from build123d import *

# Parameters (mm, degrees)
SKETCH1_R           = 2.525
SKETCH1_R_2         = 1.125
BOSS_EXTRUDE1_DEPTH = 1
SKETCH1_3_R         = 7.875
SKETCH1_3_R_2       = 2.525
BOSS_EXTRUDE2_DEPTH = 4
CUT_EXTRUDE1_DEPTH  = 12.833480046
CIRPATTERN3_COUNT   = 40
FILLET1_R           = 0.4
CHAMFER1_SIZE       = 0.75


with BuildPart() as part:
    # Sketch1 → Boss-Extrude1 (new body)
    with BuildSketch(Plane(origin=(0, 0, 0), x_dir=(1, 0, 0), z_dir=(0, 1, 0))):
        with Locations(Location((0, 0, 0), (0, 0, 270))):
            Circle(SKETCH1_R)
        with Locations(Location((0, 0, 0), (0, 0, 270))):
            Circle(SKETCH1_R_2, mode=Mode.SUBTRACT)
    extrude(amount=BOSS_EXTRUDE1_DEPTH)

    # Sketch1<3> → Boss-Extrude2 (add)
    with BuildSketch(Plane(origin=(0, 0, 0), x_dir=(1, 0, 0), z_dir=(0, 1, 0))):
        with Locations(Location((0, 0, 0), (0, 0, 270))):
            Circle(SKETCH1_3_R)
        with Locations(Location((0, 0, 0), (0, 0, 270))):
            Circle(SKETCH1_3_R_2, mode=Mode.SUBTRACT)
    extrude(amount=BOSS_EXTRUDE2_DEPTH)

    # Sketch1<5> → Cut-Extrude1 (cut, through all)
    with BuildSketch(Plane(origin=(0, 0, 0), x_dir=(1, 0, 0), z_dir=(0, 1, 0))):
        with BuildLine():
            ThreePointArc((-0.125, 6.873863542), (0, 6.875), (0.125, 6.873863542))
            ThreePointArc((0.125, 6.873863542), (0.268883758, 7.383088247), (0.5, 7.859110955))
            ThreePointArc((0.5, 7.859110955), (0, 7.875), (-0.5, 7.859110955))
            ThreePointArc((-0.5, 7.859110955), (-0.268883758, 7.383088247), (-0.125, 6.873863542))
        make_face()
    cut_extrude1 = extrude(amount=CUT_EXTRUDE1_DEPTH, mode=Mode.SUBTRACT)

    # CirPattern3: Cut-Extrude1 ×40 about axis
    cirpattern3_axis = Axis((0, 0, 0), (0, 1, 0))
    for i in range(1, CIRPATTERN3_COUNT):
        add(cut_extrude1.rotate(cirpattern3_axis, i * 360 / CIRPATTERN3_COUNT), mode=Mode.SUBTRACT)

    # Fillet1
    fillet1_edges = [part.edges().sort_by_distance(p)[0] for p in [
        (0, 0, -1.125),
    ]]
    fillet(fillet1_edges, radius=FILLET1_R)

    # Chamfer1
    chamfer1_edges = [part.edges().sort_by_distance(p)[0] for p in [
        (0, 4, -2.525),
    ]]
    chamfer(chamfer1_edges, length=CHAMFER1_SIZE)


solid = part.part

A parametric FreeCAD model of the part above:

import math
import FreeCAD as App
import Part
import Sketcher
from FreeCAD import Vector
Q = App.Units.Quantity


def edges_at(feature, points):
    """Names of the edges that pass closest to the given points."""
    edges = feature.Shape.Edges
    near = lambda p: min(range(len(edges)), key=lambda i: edges[i].distToShape(Part.Vertex(*p))[0])
    return sorted({f"Edge{near(p) + 1}" for p in points})

doc = App.newDocument("Part")
body = doc.addObject("PartDesign::Body", "Body")

# Sketch on XZ plane
sketch1 = body.newObject("Sketcher::SketchObject", "Sketch")
sketch1.AttachmentSupport = (doc.getObject("XZ_Plane"), [""])
sketch1.MapMode = "FlatFace"
sketch1.addGeometry(Part.Circle(Vector(0, 0, 0), Vector(0, 0, 1), 2.5), False)
sketch1.addGeometry(Part.Circle(Vector(0, 0, 0), Vector(0, 0, 1), 1.1), False)
sketch1.addConstraint(Sketcher.Constraint("Coincident", 0, 3, -1, 1))
sketch1.addConstraint(Sketcher.Constraint("Coincident", 1, 3, -1, 1))
sketch1.addConstraint(Sketcher.Constraint("Diameter", 0, Q("5.05 mm")))
sketch1.addConstraint(Sketcher.Constraint("Diameter", 1, Q("2.25 mm")))
pad1 = body.newObject("PartDesign::Pad", "Pad")
pad1.Profile = sketch1
pad1.Length = 1
pad1.Reversed = True

# Sketch on XZ plane
sketch2 = body.newObject("Sketcher::SketchObject", "Sketch001")
sketch2.AttachmentSupport = (doc.getObject("XZ_Plane"), [""])
sketch2.MapMode = "FlatFace"
sketch2.addGeometry(Part.Circle(Vector(0, 0, 0), Vector(0, 0, 1), 7.9), False)
sketch2.addGeometry(Part.Circle(Vector(0, 0, 0), Vector(0, 0, 1), 2.5), False)
sketch2.addConstraint(Sketcher.Constraint("Coincident", 0, 3, -1, 1))
sketch2.addConstraint(Sketcher.Constraint("Coincident", 1, 3, -1, 1))
sketch2.addConstraint(Sketcher.Constraint("Diameter", 0, Q("15.75 mm")))
sketch2.addConstraint(Sketcher.Constraint("Diameter", 1, Q("5.05 mm")))
pad2 = body.newObject("PartDesign::Pad", "Pad001")
pad2.Profile = sketch2
pad2.Length = 4
pad2.Reversed = True

# Sketch on XZ plane
sketch3 = body.newObject("Sketcher::SketchObject", "Sketch002")
sketch3.AttachmentSupport = (doc.getObject("XZ_Plane"), [""])
sketch3.MapMode = "FlatFace"
sketch3.addGeometry(Part.ArcOfCircle(Part.Circle(Vector(0, 0, 0), Vector(0, 0, 1), 6.87), math.radians(-91.04), math.radians(-88.96)), False)
sketch3.addGeometry(Part.ArcOfCircle(Part.Circle(Vector(3.07, -6.32, 0), Vector(0, 0, 1), 3), math.radians(-169), math.radians(-149)), False)
sketch3.addGeometry(Part.ArcOfCircle(Part.Circle(Vector(0, 0, 0), Vector(0, 0, 1), 7.88), math.radians(-93.64), math.radians(-86.36)), False)
sketch3.addGeometry(Part.ArcOfCircle(Part.Circle(Vector(-3.07, -6.32, 0), Vector(0, 0, 1), 3), math.radians(-31), math.radians(-11)), False)
sketch3.addConstraint(Sketcher.Constraint("Coincident", 0, 2, 1, 1))
sketch3.addConstraint(Sketcher.Constraint("Coincident", 1, 2, 2, 2))
sketch3.addConstraint(Sketcher.Constraint("Coincident", 2, 1, 3, 1))
sketch3.addConstraint(Sketcher.Constraint("Coincident", 3, 2, 0, 1))
sketch3.addConstraint(Sketcher.Constraint("Coincident", 0, 3, -1, 1))
sketch3.addConstraint(Sketcher.Constraint("Coincident", 2, 3, -1, 1))
sketch3.addConstraint(Sketcher.Constraint("Equal", 1, 3))
sketch3.addConstraint(Sketcher.Constraint("Symmetric", 1, 3, 3, 3, -2))
sketch3.addConstraint(Sketcher.Constraint("Radius", 1, Q("3 mm")))
sketch3.addConstraint(Sketcher.Constraint("Radius", 2, Q("7.875 mm")))
sketch3.addConstraint(Sketcher.Constraint("DistanceX", 2, 1, 1, 2, Q("1 mm")))
sketch3.addConstraint(Sketcher.Constraint("DistanceX", 3, 2, 0, 2, Q("0.25 mm")))
sketch3.addConstraint(Sketcher.Constraint("Radius", 0, Q("6.874997 mm")))
pocket1 = body.newObject("PartDesign::Pocket", "Pocket")
pocket1.Profile = sketch3
pocket1.Type = "ThroughAll"
doc.recompute()

polarpattern = body.newObject("PartDesign::PolarPattern", "PolarPattern")
polarpattern.Originals = [pocket1]
polarpattern.Axis = (doc.getObject("Y_Axis"), [""])
polarpattern.Angle = 360
polarpattern.Occurrences = 40
body.Tip = polarpattern
doc.recompute()

fillet = body.newObject("PartDesign::Fillet", "Fillet")
fillet.Base = (polarpattern, edges_at(polarpattern, [(0, 0, -1.125)]))
fillet.Radius = 0.4
doc.recompute()

chamfer = body.newObject("PartDesign::Chamfer", "Chamfer")
chamfer.Base = (fillet, edges_at(fillet, [(0, 4, -2.525)]))
chamfer.Size = 0.75

doc.recompute()
